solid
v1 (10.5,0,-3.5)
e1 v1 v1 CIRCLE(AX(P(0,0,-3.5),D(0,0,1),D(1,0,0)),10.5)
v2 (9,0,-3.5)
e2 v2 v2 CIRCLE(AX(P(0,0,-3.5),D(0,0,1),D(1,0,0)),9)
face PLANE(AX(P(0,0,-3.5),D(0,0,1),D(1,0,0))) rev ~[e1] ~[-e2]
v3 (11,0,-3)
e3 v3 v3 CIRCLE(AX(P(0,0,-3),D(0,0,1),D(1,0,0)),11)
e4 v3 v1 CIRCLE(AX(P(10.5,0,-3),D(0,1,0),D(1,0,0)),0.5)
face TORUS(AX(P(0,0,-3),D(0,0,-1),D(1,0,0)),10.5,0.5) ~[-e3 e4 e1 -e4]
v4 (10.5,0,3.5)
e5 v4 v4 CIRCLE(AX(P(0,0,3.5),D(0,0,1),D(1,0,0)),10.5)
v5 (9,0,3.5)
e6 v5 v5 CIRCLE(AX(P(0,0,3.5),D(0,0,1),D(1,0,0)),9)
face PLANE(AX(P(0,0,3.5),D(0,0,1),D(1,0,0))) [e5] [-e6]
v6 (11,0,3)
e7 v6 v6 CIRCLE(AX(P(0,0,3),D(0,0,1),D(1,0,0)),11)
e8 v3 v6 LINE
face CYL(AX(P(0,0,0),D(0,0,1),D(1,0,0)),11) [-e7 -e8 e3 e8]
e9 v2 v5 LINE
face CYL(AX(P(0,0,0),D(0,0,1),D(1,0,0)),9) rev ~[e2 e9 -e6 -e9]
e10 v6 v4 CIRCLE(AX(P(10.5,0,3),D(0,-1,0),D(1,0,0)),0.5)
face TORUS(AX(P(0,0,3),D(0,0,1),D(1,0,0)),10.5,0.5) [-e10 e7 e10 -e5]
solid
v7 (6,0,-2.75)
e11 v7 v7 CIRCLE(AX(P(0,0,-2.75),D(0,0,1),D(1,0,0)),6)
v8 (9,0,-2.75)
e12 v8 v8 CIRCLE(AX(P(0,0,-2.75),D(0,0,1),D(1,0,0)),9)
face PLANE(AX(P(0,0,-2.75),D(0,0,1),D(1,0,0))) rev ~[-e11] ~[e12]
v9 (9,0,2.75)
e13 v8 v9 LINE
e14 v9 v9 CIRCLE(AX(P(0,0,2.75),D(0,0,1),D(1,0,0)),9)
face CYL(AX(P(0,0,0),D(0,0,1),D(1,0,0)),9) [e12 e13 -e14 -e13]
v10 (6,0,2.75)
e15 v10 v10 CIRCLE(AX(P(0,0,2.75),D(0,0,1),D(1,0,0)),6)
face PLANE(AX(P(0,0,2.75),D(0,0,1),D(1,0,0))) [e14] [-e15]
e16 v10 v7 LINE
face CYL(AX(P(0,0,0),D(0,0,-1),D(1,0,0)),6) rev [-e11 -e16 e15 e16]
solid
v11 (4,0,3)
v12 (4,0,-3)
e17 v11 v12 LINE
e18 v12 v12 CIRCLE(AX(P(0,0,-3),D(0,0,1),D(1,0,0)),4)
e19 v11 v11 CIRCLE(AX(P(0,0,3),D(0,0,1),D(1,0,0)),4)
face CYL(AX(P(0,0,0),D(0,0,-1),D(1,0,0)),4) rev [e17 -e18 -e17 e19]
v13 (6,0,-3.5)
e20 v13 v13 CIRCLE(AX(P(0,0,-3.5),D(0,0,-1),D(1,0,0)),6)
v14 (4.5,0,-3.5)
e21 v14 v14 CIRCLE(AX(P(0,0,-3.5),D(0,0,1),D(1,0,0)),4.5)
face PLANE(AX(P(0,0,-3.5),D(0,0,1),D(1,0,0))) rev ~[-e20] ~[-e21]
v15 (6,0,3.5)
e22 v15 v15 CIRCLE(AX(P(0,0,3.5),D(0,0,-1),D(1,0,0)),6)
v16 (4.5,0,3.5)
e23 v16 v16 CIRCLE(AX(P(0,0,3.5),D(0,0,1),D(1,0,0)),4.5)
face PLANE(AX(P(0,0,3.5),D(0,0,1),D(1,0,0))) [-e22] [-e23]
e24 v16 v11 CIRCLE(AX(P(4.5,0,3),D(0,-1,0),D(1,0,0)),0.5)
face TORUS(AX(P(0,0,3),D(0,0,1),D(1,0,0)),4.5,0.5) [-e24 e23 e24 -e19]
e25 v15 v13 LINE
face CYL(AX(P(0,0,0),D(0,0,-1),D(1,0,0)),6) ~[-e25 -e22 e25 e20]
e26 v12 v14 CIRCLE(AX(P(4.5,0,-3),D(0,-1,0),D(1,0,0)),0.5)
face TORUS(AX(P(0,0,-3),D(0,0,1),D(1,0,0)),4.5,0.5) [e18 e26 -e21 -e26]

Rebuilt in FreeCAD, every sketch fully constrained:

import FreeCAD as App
import Part
import Sketcher

V = App.Vector


def edges_at(feature, points):
    """Names of the edges that pass closest to the given points."""
    edges = feature.Shape.Edges
    near = lambda p: min(range(len(edges)), key=lambda i: edges[i].distToShape(Part.Vertex(*p))[0])
    return sorted({f"Edge{near(p) + 1}" for p in points})

doc = App.newDocument("Part")
body = doc.addObject("PartDesign::Body", "Body")
body.AllowCompound = True

# Sketch on XY plane
sketch1 = body.newObject("Sketcher::SketchObject", "Sketch")
sketch1.AttachmentSupport = (doc.getObject("XY_Plane"), [""])
sketch1.MapMode = "FlatFace"
sketch1.addGeometry([
    Part.Circle(V(0, 0, 0), V(0, 0, 1), 11),
    Part.Circle(V(0, 0, 0), V(0, 0, 1), 4),
], False)
sketch1.addConstraint([
    Sketcher.Constraint("Coincident", 0, 3, -1, 1),
    Sketcher.Constraint("Coincident", 1, 3, -1, 1),
    Sketcher.Constraint("Diameter", 0, 22.0),
    Sketcher.Constraint("Diameter", 1, 8.0),
])
pad1 = body.newObject("PartDesign::Pad", "Pad")
pad1.Profile = sketch1
pad1.Length = 7
pad1.Midplane = True
doc.recompute()

fillet = body.newObject("PartDesign::Fillet", "Fillet")
fillet.Base = (pad1, edges_at(pad1, [
    (-11, 0, 3.5),
    (-11, 0, -3.5),
    (-4, 0, 3.5),
    (-4, 0, -3.5),
]))
fillet.Radius = 0.5

# Sketch on XY plane
sketch2 = body.newObject("Sketcher::SketchObject", "Sketch001")
sketch2.AttachmentSupport = (doc.getObject("XY_Plane"), [""])
sketch2.MapMode = "FlatFace"
sketch2.addGeometry([
    Part.Circle(V(0, 0, 0), V(0, 0, 1), 9),
    Part.Circle(V(0, 0, 0), V(0, 0, 1), 6),
], False)
sketch2.addConstraint([
    Sketcher.Constraint("Coincident", 0, 3, -1, 1),
    Sketcher.Constraint("Coincident", 1, 3, -1, 1),
    Sketcher.Constraint("Diameter", 0, 18.0),
    Sketcher.Constraint("Diameter", 1, 12.0),
])
pocket1 = body.newObject("PartDesign::Pocket", "Pocket")
pocket1.Profile = sketch2
pocket1.Length = 11.5
pocket1.Midplane = True
body2 = doc.addObject("PartDesign::Body", "Body001")

# Sketch on XY plane
sketch3 = body2.newObject("Sketcher::SketchObject", "Sketch002")
sketch3.AttachmentSupport = (doc.getObject("XY_Plane001"), [""])
sketch3.MapMode = "FlatFace"
sketch3.addGeometry([
    Part.Circle(V(0, 0, 0), V(0, 0, 1), 9),
    Part.Circle(V(0, 0, 0), V(0, 0, 1), 6),
], False)
sketch3.addConstraint([
    Sketcher.Constraint("Coincident", 0, 3, -1, 1),
    Sketcher.Constraint("Coincident", 1, 3, -1, 1),
    Sketcher.Constraint("Diameter", 0, 18.0),
    Sketcher.Constraint("Diameter", 1, 12.0),
])
pad2 = body2.newObject("PartDesign::Pad", "Pad001")
pad2.Profile = sketch3
pad2.Length = 5.5
pad2.Midplane = True

doc.recompute()
